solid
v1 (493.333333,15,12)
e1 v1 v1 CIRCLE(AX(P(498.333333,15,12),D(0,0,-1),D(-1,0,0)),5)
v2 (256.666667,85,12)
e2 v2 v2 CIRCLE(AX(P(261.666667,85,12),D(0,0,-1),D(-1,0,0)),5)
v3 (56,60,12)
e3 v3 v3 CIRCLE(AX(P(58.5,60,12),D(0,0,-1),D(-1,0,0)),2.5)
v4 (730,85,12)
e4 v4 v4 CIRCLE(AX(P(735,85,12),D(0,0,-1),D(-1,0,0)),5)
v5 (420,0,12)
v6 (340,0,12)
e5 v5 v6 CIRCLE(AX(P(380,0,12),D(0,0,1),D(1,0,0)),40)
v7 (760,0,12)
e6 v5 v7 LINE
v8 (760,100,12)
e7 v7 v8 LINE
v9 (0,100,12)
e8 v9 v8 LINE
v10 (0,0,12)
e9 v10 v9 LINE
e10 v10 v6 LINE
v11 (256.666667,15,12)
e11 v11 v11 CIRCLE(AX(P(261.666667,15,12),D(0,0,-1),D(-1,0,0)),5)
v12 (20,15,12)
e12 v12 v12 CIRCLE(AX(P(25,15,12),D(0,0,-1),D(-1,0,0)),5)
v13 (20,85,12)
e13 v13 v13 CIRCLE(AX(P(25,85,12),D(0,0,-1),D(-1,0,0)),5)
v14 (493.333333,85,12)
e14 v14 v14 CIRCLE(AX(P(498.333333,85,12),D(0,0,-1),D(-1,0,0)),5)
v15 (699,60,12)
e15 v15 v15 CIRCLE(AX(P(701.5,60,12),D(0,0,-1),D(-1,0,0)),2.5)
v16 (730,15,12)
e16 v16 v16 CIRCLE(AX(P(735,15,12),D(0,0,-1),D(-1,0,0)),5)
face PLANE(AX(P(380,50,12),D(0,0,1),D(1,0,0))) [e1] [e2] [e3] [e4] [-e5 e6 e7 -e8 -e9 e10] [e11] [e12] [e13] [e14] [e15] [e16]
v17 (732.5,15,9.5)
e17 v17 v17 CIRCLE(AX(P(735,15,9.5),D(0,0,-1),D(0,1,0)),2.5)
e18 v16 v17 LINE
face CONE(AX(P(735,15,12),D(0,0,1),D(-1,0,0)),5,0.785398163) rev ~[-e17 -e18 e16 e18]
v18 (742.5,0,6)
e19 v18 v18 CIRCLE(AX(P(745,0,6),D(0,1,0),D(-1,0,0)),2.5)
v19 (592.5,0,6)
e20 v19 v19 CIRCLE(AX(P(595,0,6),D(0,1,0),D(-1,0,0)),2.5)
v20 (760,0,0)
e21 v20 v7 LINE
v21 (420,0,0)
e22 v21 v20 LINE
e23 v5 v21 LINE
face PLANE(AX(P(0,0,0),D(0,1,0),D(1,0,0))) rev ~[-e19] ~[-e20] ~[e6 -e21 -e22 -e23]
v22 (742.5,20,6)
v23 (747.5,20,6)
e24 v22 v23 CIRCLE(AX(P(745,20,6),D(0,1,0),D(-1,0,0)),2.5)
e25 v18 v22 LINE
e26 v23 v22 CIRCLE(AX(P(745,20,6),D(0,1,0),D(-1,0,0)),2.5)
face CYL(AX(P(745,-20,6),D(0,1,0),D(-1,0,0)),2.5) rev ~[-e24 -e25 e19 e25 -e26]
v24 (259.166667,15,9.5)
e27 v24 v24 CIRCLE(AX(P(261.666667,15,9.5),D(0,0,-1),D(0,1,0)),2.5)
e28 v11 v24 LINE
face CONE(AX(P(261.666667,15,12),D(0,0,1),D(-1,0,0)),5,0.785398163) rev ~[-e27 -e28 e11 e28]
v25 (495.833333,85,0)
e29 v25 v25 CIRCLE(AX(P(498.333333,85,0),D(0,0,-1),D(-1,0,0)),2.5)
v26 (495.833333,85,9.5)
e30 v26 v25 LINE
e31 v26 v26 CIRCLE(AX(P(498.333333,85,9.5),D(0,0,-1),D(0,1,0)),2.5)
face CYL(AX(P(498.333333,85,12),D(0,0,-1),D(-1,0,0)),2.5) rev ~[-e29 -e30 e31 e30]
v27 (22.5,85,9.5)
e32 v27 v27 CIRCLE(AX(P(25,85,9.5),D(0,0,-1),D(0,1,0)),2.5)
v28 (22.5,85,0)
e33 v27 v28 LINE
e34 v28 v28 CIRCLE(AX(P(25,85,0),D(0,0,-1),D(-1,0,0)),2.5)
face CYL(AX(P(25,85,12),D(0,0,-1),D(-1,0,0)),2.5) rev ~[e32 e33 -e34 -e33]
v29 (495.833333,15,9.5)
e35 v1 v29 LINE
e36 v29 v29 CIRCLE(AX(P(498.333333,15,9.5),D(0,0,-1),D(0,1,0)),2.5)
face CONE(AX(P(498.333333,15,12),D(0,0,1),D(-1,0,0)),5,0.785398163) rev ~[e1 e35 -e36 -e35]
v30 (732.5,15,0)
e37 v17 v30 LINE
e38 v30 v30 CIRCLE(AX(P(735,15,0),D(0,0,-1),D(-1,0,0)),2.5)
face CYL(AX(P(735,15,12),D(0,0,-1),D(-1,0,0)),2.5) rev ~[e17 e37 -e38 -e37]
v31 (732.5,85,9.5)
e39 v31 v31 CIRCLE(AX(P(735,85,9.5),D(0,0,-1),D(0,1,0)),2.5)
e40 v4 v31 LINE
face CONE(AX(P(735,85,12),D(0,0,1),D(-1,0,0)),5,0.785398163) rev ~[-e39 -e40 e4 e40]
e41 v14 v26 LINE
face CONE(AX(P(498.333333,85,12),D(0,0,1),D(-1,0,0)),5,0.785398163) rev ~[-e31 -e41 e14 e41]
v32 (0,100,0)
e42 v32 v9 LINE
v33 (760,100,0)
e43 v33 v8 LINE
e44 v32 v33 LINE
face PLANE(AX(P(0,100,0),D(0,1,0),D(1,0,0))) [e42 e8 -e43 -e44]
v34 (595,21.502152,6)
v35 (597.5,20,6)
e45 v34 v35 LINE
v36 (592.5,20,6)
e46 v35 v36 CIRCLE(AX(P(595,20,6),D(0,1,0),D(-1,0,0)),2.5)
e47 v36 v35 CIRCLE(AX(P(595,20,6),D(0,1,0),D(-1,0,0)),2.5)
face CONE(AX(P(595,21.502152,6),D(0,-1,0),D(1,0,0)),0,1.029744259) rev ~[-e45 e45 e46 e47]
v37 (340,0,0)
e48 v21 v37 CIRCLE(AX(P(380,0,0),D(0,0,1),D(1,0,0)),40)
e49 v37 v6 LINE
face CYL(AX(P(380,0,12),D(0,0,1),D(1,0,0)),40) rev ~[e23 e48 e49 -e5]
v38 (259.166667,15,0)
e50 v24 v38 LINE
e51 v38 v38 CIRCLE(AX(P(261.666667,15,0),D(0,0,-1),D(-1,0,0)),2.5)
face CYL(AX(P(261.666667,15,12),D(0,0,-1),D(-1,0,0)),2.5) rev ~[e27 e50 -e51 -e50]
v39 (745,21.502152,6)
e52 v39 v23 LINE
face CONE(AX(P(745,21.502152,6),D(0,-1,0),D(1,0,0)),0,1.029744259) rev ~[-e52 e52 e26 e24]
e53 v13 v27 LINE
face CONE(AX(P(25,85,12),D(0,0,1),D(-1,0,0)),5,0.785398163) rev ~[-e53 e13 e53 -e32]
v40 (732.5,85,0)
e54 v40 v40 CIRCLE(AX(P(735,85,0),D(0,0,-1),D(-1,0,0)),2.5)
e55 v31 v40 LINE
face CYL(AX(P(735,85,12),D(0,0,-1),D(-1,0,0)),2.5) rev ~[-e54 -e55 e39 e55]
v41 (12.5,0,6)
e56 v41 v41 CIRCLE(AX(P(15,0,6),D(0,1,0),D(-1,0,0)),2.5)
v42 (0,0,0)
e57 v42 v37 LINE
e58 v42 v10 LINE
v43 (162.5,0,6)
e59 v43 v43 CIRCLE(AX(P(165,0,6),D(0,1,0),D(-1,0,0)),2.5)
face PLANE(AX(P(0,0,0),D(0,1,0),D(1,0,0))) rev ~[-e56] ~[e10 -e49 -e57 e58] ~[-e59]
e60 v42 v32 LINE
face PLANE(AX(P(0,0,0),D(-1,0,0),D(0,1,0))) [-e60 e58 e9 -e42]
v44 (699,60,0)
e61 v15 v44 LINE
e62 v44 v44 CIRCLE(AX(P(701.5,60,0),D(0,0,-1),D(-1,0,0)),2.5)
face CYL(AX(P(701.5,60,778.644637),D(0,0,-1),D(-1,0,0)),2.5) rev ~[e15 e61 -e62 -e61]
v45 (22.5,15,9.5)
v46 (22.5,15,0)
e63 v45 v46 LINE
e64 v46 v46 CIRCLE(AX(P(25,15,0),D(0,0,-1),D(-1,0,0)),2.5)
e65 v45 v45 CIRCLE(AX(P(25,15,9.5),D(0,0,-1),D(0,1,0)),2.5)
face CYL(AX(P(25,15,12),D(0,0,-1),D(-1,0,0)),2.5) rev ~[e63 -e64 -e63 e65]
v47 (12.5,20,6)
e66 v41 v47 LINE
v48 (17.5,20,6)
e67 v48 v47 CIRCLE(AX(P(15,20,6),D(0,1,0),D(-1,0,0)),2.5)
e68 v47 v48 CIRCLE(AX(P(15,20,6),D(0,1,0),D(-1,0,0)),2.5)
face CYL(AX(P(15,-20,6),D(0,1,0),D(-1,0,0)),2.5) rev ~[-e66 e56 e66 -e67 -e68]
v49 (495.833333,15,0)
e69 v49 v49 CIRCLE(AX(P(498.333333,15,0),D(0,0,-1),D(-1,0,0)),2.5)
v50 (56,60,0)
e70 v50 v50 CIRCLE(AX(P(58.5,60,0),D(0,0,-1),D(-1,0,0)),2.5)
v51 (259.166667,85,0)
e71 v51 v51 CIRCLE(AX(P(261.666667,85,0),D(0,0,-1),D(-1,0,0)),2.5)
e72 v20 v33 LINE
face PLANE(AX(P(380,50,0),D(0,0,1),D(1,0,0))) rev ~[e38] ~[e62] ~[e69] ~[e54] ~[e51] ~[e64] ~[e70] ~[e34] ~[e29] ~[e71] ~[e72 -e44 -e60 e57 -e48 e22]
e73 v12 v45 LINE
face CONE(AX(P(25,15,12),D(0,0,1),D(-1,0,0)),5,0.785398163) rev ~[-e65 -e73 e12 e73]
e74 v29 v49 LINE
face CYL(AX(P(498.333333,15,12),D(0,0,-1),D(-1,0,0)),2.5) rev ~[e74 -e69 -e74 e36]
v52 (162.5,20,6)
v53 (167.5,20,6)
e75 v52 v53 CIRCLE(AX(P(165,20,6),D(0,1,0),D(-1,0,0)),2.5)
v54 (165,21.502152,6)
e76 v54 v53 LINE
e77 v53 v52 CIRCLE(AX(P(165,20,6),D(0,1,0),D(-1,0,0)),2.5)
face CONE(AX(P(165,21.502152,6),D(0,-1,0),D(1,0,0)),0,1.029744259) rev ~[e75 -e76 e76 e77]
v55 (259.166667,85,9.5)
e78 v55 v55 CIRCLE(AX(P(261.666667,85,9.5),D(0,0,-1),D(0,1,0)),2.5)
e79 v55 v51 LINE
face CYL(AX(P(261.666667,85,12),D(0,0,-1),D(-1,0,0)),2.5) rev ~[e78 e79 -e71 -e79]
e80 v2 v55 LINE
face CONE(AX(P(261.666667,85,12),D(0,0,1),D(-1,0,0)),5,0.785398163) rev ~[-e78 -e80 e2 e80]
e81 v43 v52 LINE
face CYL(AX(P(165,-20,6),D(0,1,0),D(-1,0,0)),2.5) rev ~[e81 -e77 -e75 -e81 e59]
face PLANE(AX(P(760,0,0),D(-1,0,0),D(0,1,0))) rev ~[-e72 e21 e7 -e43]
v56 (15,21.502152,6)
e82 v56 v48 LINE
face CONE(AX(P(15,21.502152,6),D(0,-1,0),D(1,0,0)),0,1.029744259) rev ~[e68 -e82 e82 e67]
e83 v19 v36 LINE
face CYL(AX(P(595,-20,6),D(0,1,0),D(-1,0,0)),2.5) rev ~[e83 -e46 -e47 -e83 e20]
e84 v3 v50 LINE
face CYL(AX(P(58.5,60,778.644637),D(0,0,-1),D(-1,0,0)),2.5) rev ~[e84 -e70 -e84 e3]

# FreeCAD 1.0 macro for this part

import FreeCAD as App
import Part
import Sketcher


def add_polygon(sketch, points):
    """Adds a closed chain of lines whose ends are joined by coincident constraints."""
    first, n = sketch.GeometryCount, len(points)
    for a, b in zip(points, points[1:] + points[:1]):
        sketch.addGeometry(Part.LineSegment(App.Vector(*a, 0), App.Vector(*b, 0)), False)
    for i in range(n):
        sketch.addConstraint(Sketcher.Constraint("Coincident", first + i, 2, first + (i + 1) % n, 1))

doc = App.newDocument("Part")
body = doc.addObject("PartDesign::Body", "Body")

sketch1 = body.newObject("Sketcher::SketchObject", "Sketch")
sketch1.AttachmentSupport = (doc.getObject("XY_Plane"), [""])
sketch1.MapMode = "FlatFace"
add_polygon(sketch1, [(0, 100), (0, 0), (760, 0), (760, 100)])
sketch1.addConstraint(Sketcher.Constraint("Vertical", 0))
sketch1.addConstraint(Sketcher.Constraint("Horizontal", 1))
sketch1.addConstraint(Sketcher.Constraint("Vertical", 2))
sketch1.addConstraint(Sketcher.Constraint("Horizontal", 3))
sketch1.addConstraint(Sketcher.Constraint("Coincident", 0, 2, -1, 1))
sketch1.addConstraint(Sketcher.Constraint("DistanceX", 1, 1, 1, 2, 760.0))
sketch1.addConstraint(Sketcher.Constraint("DistanceY", 0, 2, 0, 1, 100.0))
pad1 = body.newObject("PartDesign::Pad", "Pad")
pad1.Profile = sketch1
pad1.Length = 12

sketch2 = body.newObject("Sketcher::SketchObject", "Sketch001")
sketch2.AttachmentSupport = (doc.getObject("XY_Plane"), [""])
sketch2.MapMode = "FlatFace"
sketch2.AttachmentOffset = App.Placement(App.Vector(0, 0, 12), App.Rotation())
sketch2.addGeometry(Part.Circle(App.Vector(58.5, 60, 0), App.Vector(0, 0, 1), 2.5), False)
sketch2.addGeometry(Part.Circle(App.Vector(701.5, 60, 0), App.Vector(0, 0, 1), 2.5), False)
sketch2.addConstraint(Sketcher.Constraint("Equal", 0, 1))
sketch2.addConstraint(Sketcher.Constraint("Horizontal", 0, 3, 1, 3))
sketch2.addConstraint(Sketcher.Constraint("Diameter", 0, 5.0))
sketch2.addConstraint(Sketcher.Constraint("DistanceY", -1, 1, 0, 3, 60.0))
sketch2.addConstraint(Sketcher.Constraint("DistanceX", 0, 3, 1, 3, 643.0))
sketch2.addConstraint(Sketcher.Constraint("DistanceX", -1, 1, 0, 3, 58.5))
doc.recompute()
hole = body.newObject("PartDesign::Hole", "Hole")
hole.Profile = sketch2
hole.ThreadType = "None"
hole.Diameter = 5
hole.DepthType = "ThroughAll"

sketch3 = body.newObject("Sketcher::SketchObject", "Sketch002")
sketch3.AttachmentSupport = (doc.getObject("XY_Plane"), [""])
sketch3.MapMode = "FlatFace"
sketch3.AttachmentOffset = App.Placement(App.Vector(0, 0, 12), App.Rotation())
sketch3.addGeometry(Part.Circle(App.Vector(380, 0, 0), App.Vector(0, 0, 1), 40), False)
sketch3.addConstraint(Sketcher.Constraint("PointOnObject", 0, 3, -1))
sketch3.addConstraint(Sketcher.Constraint("Diameter", 0, 80.0))
sketch3.addConstraint(Sketcher.Constraint("DistanceX", -1, 1, 0, 3, 380.0))
pocket1 = body.newObject("PartDesign::Pocket", "Pocket")
pocket1.Profile = sketch3
pocket1.Length = 25

sketch4 = body.newObject("Sketcher::SketchObject", "Sketch003")
sketch4.AttachmentSupport = (doc.getObject("XZ_Plane"), [""])
sketch4.MapMode = "FlatFace"
sketch4.addGeometry(Part.Circle(App.Vector(15, 6, 0), App.Vector(0, 0, 1), 2.5), False)
sketch4.addGeometry(Part.Circle(App.Vector(165, 6, 0), App.Vector(0, 0, 1), 2.5), False)
sketch4.addConstraint(Sketcher.Constraint("Equal", 0, 1))
sketch4.addConstraint(Sketcher.Constraint("Horizontal", 0, 3, 1, 3))
sketch4.addConstraint(Sketcher.Constraint("Diameter", 0, 5.0))
sketch4.addConstraint(Sketcher.Constraint("DistanceX", -1, 1, 0, 3, 15.0))
sketch4.addConstraint(Sketcher.Constraint("DistanceY", -1, 1, 0, 3, 6.0))
sketch4.addConstraint(Sketcher.Constraint("DistanceX", -1, 1, 1, 3, 165.0))
doc.recompute()
hole2 = body.newObject("PartDesign::Hole", "Hole001")
hole2.Profile = sketch4
hole2.ThreadType = "None"
hole2.Diameter = 5
hole2.DepthType = "Dimension"
hole2.Depth = 20
hole2.DrillPoint = "Angled"
hole2.DrillPointAngle = 118

sketch5 = body.newObject("Sketcher::SketchObject", "Sketch004")
sketch5.AttachmentSupport = (doc.getObject("XZ_Plane"), [""])
sketch5.MapMode = "FlatFace"
sketch5.addGeometry(Part.Circle(App.Vector(595, 6, 0), App.Vector(0, 0, 1), 2.5), False)
sketch5.addGeometry(Part.Circle(App.Vector(745, 6, 0), App.Vector(0, 0, 1), 2.5), False)
sketch5.addConstraint(Sketcher.Constraint("Equal", 0, 1))
sketch5.addConstraint(Sketcher.Constraint("Horizontal", 0, 3, 1, 3))
sketch5.addConstraint(Sketcher.Constraint("Diameter", 0, 5.0))
sketch5.addConstraint(Sketcher.Constraint("DistanceX", -1, 1, 0, 3, 595.0))
sketch5.addConstraint(Sketcher.Constraint("DistanceY", -1, 1, 0, 3, 6.0))
sketch5.addConstraint(Sketcher.Constraint("DistanceX", -1, 1, 1, 3, 745.0))
doc.recompute()
hole3 = body.newObject("PartDesign::Hole", "Hole002")
hole3.Profile = sketch5
hole3.ThreadType = "None"
hole3.Diameter = 5
hole3.DepthType = "Dimension"
hole3.Depth = 20
hole3.DrillPoint = "Angled"
hole3.DrillPointAngle = 118

sketch6 = body.newObject("Sketcher::SketchObject", "Sketch005")
sketch6.AttachmentSupport = (doc.getObject("XY_Plane"), [""])
sketch6.MapMode = "FlatFace"
sketch6.AttachmentOffset = App.Placement(App.Vector(0, 0, 12), App.Rotation())
sketch6.addGeometry(Part.Circle(App.Vector(25, 15, 0), App.Vector(0, 0, 1), 2.5), False)
sketch6.addGeometry(Part.Circle(App.Vector(25, 85, 0), App.Vector(0, 0, 1), 2.5), False)
sketch6.addGeometry(Part.Circle(App.Vector(261.7, 15, 0), App.Vector(0, 0, 1), 2.5), False)
sketch6.addGeometry(Part.Circle(App.Vector(261.7, 85, 0), App.Vector(0, 0, 1), 2.5), False)
sketch6.addGeometry(Part.Circle(App.Vector(498.3, 15, 0), App.Vector(0, 0, 1), 2.5), False)
sketch6.addGeometry(Part.Circle(App.Vector(498.3, 85, 0), App.Vector(0, 0, 1), 2.5), False)
sketch6.addGeometry(Part.Circle(App.Vector(735, 85, 0), App.Vector(0, 0, 1), 2.5), False)
sketch6.addGeometry(Part.Circle(App.Vector(735, 15, 0), App.Vector(0, 0, 1), 2.5), False)
sketch6.addConstraint(Sketcher.Constraint("Equal", 0, 1))
sketch6.addConstraint(Sketcher.Constraint("Equal", 1, 2))
sketch6.addConstraint(Sketcher.Constraint("Equal", 2, 3))
sketch6.addConstraint(Sketcher.Constraint("Equal", 3, 4))
sketch6.addConstraint(Sketcher.Constraint("Equal", 4, 5))
sketch6.addConstraint(Sketcher.Constraint("Equal", 5, 6))
sketch6.addConstraint(Sketcher.Constraint("Equal", 6, 7))
sketch6.addConstraint(Sketcher.Constraint("Horizontal", 0, 3, 2, 3))
sketch6.addConstraint(Sketcher.Constraint("Horizontal", 1, 3, 3, 3))
sketch6.addConstraint(Sketcher.Constraint("Horizontal", 2, 3, 4, 3))
sketch6.addConstraint(Sketcher.Constraint("Horizontal", 3, 3, 5, 3))
sketch6.addConstraint(Sketcher.Constraint("Horizontal", 5, 3, 6, 3))
sketch6.addConstraint(Sketcher.Constraint("Horizontal", 4, 3, 7, 3))
sketch6.addConstraint(Sketcher.Constraint("Vertical", 0, 3, 1, 3))
sketch6.addConstraint(Sketcher.Constraint("Vertical", 2, 3, 3, 3))
sketch6.addConstraint(Sketcher.Constraint("Vertical", 4, 3, 5, 3))
sketch6.addConstraint(Sketcher.Constraint("Vertical", 6, 3, 7, 3))
sketch6.addConstraint(Sketcher.Constraint("Diameter", 0, 5.0))
sketch6.addConstraint(Sketcher.Constraint("DistanceX", -1, 1, 0, 3, 25.0))
sketch6.addConstraint(Sketcher.Constraint("DistanceY", -1, 1, 0, 3, 15.0))
sketch6.addConstraint(Sketcher.Constraint("DistanceY", -1, 1, 1, 3, 85.0))
sketch6.addConstraint(Sketcher.Constraint("DistanceX", -1, 1, 6, 3, 735.0))
sketch6.addConstraint(Sketcher.Constraint("DistanceX", -1, 1, 2, 3, 261.666667))
sketch6.addConstraint(Sketcher.Constraint("DistanceX", -1, 1, 4, 3, 498.333333))
doc.recompute()
hole4 = body.newObject("PartDesign::Hole", "Hole003")
hole4.Profile = sketch6
hole4.ThreadType = "None"
hole4.Diameter = 5
hole4.DepthType = "ThroughAll"
hole4.HoleCutType = "Countersink"
hole4.HoleCutDiameter = 10
hole4.HoleCutCountersinkAngle = 90

doc.recompute()
